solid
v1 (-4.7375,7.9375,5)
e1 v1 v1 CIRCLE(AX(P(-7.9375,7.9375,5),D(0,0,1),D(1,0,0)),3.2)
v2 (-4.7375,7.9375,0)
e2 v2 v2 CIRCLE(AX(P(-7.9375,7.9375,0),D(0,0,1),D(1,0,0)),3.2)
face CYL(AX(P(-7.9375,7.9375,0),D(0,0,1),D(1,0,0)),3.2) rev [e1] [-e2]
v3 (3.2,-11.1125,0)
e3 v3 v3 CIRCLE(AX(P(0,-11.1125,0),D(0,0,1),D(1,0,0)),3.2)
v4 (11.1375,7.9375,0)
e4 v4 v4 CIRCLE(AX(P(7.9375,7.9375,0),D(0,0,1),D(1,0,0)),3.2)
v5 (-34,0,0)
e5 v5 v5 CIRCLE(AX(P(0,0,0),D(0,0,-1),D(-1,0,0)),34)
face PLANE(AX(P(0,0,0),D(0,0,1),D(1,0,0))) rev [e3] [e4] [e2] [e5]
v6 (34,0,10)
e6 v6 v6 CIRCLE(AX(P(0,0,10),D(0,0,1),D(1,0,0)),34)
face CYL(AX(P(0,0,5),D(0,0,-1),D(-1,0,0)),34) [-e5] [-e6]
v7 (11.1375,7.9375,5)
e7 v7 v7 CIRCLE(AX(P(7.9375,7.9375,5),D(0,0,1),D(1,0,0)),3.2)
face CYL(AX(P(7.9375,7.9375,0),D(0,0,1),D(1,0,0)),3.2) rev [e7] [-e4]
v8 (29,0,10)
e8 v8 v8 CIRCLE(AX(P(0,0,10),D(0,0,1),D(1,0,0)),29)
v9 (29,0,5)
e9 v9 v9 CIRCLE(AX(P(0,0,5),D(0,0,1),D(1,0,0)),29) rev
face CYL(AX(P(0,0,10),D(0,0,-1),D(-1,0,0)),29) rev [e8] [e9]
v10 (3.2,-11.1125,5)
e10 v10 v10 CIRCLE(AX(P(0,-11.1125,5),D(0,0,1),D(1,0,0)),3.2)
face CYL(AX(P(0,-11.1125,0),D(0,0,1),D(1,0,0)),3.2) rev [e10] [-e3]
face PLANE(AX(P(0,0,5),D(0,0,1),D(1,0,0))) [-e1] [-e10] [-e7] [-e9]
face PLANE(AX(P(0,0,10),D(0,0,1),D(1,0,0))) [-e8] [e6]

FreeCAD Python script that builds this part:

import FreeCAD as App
import Part
import Sketcher
from FreeCAD import Vector
Q = App.Units.Quantity

doc = App.newDocument("Part")
body = doc.addObject("PartDesign::Body", "Body")

# Sketch on XY plane
sketch1 = body.newObject("Sketcher::SketchObject", "Sketch")
sketch1.AttachmentSupport = (doc.getObject("XY_Plane"), [""])
sketch1.MapMode = "FlatFace"
sketch1.addGeometry(Part.Circle(Vector(0, 0, 0), Vector(0, 0, 1), 24), False)
sketch1.addConstraint([
    Sketcher.Constraint("Coincident", 0, 3, -1, 1),
    Sketcher.Constraint("Diameter", 0, Q("48 mm")),
])
pad1 = body.newObject("PartDesign::Pad", "Pad")
pad1.Profile = sketch1
pad1.Length = 4

# Sketch on XY plane
sketch2 = body.newObject("Sketcher::SketchObject", "Sketch001")
sketch2.AttachmentSupport = (doc.getObject("XY_Plane"), [""])
sketch2.MapMode = "FlatFace"
sketch2.AttachmentOffset = App.Placement(Vector(0, 0, 4), App.Rotation())
sketch2.addGeometry(Part.Circle(Vector(0, 0, 0), Vector(0, 0, 1), 24), False)
sketch2.addConstraint([
    Sketcher.Constraint("Coincident", 0, 3, -1, 1),
    Sketcher.Constraint("Diameter", 0, Q("48 mm")),
])
pad2 = body.newObject("PartDesign::Pad", "Pad001")
pad2.Profile = sketch2
pad2.Length = 1

# Sketch on XY plane
sketch3 = body.newObject("Sketcher::SketchObject", "Sketch002")
sketch3.AttachmentSupport = (doc.getObject("XY_Plane"), [""])
sketch3.MapMode = "FlatFace"
sketch3.AttachmentOffset = App.Placement(Vector(0, 0, 5), App.Rotation())
sketch3.addGeometry([
    Part.Circle(Vector(-7.9, 7.9, 0), Vector(0, 0, 1), 3.2),
    Part.Circle(Vector(7.9, 7.9, 0), Vector(0, 0, 1), 3.2),
    Part.Circle(Vector(0, -11.1, 0), Vector(0, 0, 1), 3.2),
], False)
sketch3.addConstraint([
    Sketcher.Constraint("Equal", 0, 1),
    Sketcher.Constraint("Equal", 1, 2),
    Sketcher.Constraint("Symmetric", 0, 3, 1, 3, -2),
    Sketcher.Constraint("PointOnObject", 2, 3, -2),
    Sketcher.Constraint("Diameter", 0, Q("6.4 mm")),
    Sketcher.Constraint("DistanceY", 2, 3, 0, 3, Q("19.05 mm")),
    Sketcher.Constraint("DistanceX", 0, 3, 1, 3, Q("15.875 mm")),
    Sketcher.Constraint("DistanceY", -1, 1, 0, 3, Q("7.9375 mm")),
])
pocket1 = body.newObject("PartDesign::Pocket", "Pocket")
pocket1.Profile = sketch3
pocket1.Type = "ThroughAll"

# Sketch on XY plane
sketch4 = body.newObject("Sketcher::SketchObject", "Sketch003")
sketch4.AttachmentSupport = (doc.getObject("XY_Plane"), [""])
sketch4.MapMode = "FlatFace"
sketch4.addGeometry([
    Part.Circle(Vector(0, 0, 0), Vector(0, 0, 1), 34),
    Part.Circle(Vector(0, 0, 0), Vector(0, 0, 1), 24),
], False)
sketch4.addConstraint([
    Sketcher.Constraint("Coincident", 0, 3, -1, 1),
    Sketcher.Constraint("Coincident", 1, 3, -1, 1),
    Sketcher.Constraint("Diameter", 0, Q("68 mm")),
    Sketcher.Constraint("Diameter", 1, Q("48 mm")),
])
pad3 = body.newObject("PartDesign::Pad", "Pad002")
pad3.Profile = sketch4
pad3.Length = 5

# Sketch on XY plane
sketch5 = body.newObject("Sketcher::SketchObject", "Sketch004")
sketch5.AttachmentSupport = (doc.getObject("XY_Plane"), [""])
sketch5.MapMode = "FlatFace"
sketch5.AttachmentOffset = App.Placement(Vector(0, 0, 5), App.Rotation())
sketch5.addGeometry([
    Part.Circle(Vector(0, 0, 0), Vector(0, 0, 1), 34),
    Part.Circle(Vector(0, 0, 0), Vector(0, 0, 1), 29),
], False)
sketch5.addConstraint([
    Sketcher.Constraint("Coincident", 0, 3, -1, 1),
    Sketcher.Constraint("Coincident", 1, 3, -1, 1),
    Sketcher.Constraint("Diameter", 0, Q("68 mm")),
    Sketcher.Constraint("Diameter", 1, Q("58 mm")),
])
pad4 = body.newObject("PartDesign::Pad", "Pad003")
pad4.Profile = sketch5
pad4.Length = 5

doc.recompute()
